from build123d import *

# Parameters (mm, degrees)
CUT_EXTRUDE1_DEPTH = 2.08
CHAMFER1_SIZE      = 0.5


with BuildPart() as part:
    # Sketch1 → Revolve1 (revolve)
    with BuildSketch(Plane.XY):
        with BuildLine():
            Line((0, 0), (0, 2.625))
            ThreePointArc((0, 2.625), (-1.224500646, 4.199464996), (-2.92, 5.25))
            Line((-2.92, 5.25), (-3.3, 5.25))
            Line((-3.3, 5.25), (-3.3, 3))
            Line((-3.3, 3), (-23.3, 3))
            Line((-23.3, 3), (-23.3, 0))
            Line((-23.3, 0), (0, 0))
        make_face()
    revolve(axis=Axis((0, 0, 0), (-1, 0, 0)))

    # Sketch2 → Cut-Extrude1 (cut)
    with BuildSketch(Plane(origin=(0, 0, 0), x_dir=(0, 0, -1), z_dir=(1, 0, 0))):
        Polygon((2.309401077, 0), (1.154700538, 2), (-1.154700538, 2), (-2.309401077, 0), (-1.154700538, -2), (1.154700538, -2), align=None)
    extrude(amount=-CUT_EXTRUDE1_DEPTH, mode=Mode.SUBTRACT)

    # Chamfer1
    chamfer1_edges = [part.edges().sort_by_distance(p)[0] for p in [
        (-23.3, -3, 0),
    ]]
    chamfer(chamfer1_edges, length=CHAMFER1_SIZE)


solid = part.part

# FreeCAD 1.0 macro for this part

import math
import FreeCAD as App
import Part
import Sketcher
from FreeCAD import Vector
Q = App.Units.Quantity


def edges_at(feature, points):
    """Names of the edges that pass closest to the given points."""
    edges = feature.Shape.Edges
    near = lambda p: min(range(len(edges)), key=lambda i: edges[i].distToShape(Part.Vertex(*p))[0])
    return sorted({f"Edge{near(p) + 1}" for p in points})

doc = App.newDocument("Part")
body = doc.addObject("PartDesign::Body", "Body")

sketch1 = body.newObject("Sketcher::SketchObject", "Sketch")
sketch1.AttachmentSupport = (doc.getObject("XY_Plane"), [""])
sketch1.MapMode = "FlatFace"
sketch1.addGeometry([
    Part.LineSegment(Vector(0, 0, 0), Vector(0, 2.62, 0)),
    Part.ArcOfCircle(Part.Circle(Vector(-5, 0, 0), Vector(0, 0, 1), 5.65), math.radians(28), math.radians(68)),
    Part.LineSegment(Vector(-2.92, 5.25, 0), Vector(-3.3, 5.25, 0)),
    Part.LineSegment(Vector(-3.3, 5.25, 0), Vector(-3.3, 3, 0)),
    Part.LineSegment(Vector(-3.3, 3, 0), Vector(-23.3, 3, 0)),
    Part.LineSegment(Vector(-23.3, 3, 0), Vector(-23.3, 0, 0)),
    Part.LineSegment(Vector(-23.3, 0, 0), Vector(0, 0, 0)),
], False)
sketch1.addConstraint([
    Sketcher.Constraint("Coincident", 0, 2, 1, 1),
    Sketcher.Constraint("Coincident", 1, 2, 2, 1),
    Sketcher.Constraint("Coincident", 2, 2, 3, 1),
    Sketcher.Constraint("Coincident", 3, 2, 4, 1),
    Sketcher.Constraint("Coincident", 4, 2, 5, 1),
    Sketcher.Constraint("Coincident", 5, 2, 6, 1),
    Sketcher.Constraint("Coincident", 6, 2, 0, 1),
    Sketcher.Constraint("Vertical", 0),
    Sketcher.Constraint("Horizontal", 2),
    Sketcher.Constraint("Vertical", 3),
    Sketcher.Constraint("Horizontal", 4),
    Sketcher.Constraint("Vertical", 5),
    Sketcher.Constraint("Horizontal", 6),
    Sketcher.Constraint("Coincident", 6, 2, -1, 1),
    Sketcher.Constraint("PointOnObject", 1, 3, -1),
    Sketcher.Constraint("DistanceX", 4, 2, 4, 1, 20.0),
    Sketcher.Constraint("DistanceY", 5, 2, 5, 1, 3.0),
    Sketcher.Constraint("DistanceX", 6, 1, 6, 2, 23.3),
    Sketcher.Constraint("DistanceX", 2, 2, 2, 1, 0.38),
    Sketcher.Constraint("DistanceY", 3, 2, 3, 1, 2.25),
    Sketcher.Constraint("DistanceY", 0, 1, 0, 2, 2.625),
])
revolution = body.newObject("PartDesign::Revolution", "Revolution")
revolution.Profile = sketch1
revolution.ReferenceAxis = (sketch1, ["H_Axis"])
revolution.Angle = 360

sketch2 = body.newObject("Sketcher::SketchObject", "Sketch001")
sketch2.AttachmentSupport = (doc.getObject("YZ_Plane"), [""])
sketch2.MapMode = "FlatFace"
sketch2.addGeometry([
    Part.LineSegment(Vector(0, -2.3, 0), Vector(2, -1.2, 0)),
    Part.LineSegment(Vector(2, -1.2, 0), Vector(2, 1.2, 0)),
    Part.LineSegment(Vector(2, 1.2, 0), Vector(0, 2.3, 0)),
    Part.LineSegment(Vector(0, 2.3, 0), Vector(-2, 1.2, 0)),
    Part.LineSegment(Vector(-2, 1.2, 0), Vector(-2, -1.2, 0)),
    Part.LineSegment(Vector(-2, -1.2, 0), Vector(0, -2.3, 0)),
], False)
sketch2.addConstraint([
    Sketcher.Constraint("Coincident", 0, 2, 1, 1),
    Sketcher.Constraint("Coincident", 1, 2, 2, 1),
    Sketcher.Constraint("Coincident", 2, 2, 3, 1),
    Sketcher.Constraint("Coincident", 3, 2, 4, 1),
    Sketcher.Constraint("Coincident", 4, 2, 5, 1),
    Sketcher.Constraint("Coincident", 5, 2, 0, 1),
    Sketcher.Constraint("Vertical", 1),
    Sketcher.Constraint("Vertical", 4),
    Sketcher.Constraint("Symmetric", 0, 2, 3, 2, -1, 1),
    Sketcher.Constraint("Symmetric", 2, 2, 5, 2, -1, 1),
    Sketcher.Constraint("PointOnObject", 2, 2, -2),
    Sketcher.Constraint("Parallel", 2, 5),
    Sketcher.Constraint("Horizontal", 1, 2, 3, 2),
    Sketcher.Constraint("Angle", 0, Q("30 deg")),
    Sketcher.Constraint("DistanceX", -1, 1, 0, 2, 2.0),
    Sketcher.Constraint("DistanceY", 1, 1, 1, 2, 2.309401),
])
pocket1 = body.newObject("PartDesign::Pocket", "Pocket")
pocket1.Profile = sketch2
pocket1.Length = 2.08
doc.recompute()

chamfer = body.newObject("PartDesign::Chamfer", "Chamfer")
chamfer.Base = (pocket1, edges_at(pocket1, [(-23.3, -3, 0)]))
chamfer.Size = 0.5

doc.recompute()
